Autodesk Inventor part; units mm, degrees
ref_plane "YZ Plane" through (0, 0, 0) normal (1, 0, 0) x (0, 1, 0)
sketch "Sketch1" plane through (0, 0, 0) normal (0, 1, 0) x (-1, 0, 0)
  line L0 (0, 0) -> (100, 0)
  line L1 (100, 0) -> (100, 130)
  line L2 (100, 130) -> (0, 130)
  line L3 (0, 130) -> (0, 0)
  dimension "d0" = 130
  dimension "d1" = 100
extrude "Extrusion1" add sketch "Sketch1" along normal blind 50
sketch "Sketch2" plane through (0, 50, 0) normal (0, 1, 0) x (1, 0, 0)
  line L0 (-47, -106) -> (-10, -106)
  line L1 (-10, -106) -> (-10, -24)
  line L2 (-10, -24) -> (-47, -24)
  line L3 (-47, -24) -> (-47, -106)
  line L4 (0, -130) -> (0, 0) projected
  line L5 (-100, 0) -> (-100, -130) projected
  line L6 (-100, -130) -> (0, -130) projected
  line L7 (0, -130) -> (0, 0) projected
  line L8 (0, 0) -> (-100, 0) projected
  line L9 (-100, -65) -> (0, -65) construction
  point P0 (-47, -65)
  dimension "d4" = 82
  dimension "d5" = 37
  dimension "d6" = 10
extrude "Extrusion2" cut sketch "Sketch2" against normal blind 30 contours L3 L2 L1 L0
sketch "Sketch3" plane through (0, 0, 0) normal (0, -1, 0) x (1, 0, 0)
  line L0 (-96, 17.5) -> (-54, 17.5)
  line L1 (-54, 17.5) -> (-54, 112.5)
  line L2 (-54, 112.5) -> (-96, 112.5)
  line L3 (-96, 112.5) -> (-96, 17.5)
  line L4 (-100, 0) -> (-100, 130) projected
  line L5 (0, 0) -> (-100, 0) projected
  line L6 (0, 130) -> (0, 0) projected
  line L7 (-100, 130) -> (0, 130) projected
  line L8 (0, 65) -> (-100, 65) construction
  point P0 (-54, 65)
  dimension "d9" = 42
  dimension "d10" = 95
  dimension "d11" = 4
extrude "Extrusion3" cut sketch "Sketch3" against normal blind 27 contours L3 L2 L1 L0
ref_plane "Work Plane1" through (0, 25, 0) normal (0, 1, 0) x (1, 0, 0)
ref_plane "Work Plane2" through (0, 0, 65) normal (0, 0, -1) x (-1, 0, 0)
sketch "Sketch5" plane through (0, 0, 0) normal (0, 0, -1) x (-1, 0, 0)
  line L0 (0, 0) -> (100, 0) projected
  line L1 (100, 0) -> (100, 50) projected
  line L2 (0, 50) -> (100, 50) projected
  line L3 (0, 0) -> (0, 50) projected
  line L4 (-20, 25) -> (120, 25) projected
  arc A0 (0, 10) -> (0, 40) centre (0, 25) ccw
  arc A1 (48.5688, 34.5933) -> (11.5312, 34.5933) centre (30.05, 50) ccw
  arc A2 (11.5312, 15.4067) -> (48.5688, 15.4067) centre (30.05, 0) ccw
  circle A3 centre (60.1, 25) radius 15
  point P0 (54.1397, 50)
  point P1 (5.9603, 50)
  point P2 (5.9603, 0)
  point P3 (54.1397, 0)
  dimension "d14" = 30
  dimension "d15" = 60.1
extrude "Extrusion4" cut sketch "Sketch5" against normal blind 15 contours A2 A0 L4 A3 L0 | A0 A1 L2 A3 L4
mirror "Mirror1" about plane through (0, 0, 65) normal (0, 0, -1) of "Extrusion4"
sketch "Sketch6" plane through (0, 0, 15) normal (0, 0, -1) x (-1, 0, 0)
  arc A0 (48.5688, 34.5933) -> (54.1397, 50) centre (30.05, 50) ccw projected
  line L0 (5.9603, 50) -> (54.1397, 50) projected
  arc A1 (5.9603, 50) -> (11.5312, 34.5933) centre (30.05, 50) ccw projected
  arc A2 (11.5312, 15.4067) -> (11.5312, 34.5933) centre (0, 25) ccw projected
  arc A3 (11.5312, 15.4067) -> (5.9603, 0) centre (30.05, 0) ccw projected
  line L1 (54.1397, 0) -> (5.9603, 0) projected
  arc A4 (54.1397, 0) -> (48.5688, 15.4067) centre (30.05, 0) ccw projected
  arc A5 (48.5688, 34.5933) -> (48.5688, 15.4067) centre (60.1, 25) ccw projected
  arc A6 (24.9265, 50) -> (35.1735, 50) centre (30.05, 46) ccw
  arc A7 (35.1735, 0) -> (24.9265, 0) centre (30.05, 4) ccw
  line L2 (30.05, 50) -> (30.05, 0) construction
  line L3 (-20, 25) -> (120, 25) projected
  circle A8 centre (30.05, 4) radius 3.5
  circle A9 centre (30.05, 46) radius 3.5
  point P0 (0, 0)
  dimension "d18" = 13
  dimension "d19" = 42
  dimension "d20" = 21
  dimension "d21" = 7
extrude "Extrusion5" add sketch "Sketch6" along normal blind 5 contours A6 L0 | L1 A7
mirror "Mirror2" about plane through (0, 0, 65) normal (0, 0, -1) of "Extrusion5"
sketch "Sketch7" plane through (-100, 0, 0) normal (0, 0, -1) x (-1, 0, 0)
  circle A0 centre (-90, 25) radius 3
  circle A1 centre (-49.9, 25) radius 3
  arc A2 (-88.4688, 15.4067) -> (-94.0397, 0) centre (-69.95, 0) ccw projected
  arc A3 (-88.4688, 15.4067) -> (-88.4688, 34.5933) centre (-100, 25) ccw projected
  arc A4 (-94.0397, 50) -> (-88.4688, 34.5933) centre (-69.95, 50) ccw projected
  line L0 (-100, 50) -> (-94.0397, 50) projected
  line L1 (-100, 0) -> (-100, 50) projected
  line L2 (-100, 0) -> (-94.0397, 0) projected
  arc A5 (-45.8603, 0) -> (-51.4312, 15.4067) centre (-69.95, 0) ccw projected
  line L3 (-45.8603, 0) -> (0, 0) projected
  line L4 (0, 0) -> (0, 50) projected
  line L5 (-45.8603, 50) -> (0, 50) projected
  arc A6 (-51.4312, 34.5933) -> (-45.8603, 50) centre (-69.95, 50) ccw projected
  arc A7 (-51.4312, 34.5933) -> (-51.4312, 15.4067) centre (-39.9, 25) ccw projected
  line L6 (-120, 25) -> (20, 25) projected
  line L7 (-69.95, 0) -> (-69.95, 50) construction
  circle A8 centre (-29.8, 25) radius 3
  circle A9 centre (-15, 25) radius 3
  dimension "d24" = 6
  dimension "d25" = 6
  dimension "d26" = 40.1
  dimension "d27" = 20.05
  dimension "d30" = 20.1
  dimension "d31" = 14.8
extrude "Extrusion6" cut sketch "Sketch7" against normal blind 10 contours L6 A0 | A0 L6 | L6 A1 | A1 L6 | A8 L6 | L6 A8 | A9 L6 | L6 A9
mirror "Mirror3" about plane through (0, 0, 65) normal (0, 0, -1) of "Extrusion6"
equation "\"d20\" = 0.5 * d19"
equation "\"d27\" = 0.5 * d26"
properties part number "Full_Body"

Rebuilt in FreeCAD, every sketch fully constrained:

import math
import FreeCAD as App
import Part
import Sketcher
from FreeCAD import Vector

doc = App.newDocument("Part")
body = doc.addObject("PartDesign::Body", "Body")

# Sketch on XZ plane
sketch1 = body.newObject("Sketcher::SketchObject", "Sketch")
sketch1.AttachmentSupport = (doc.getObject("XZ_Plane"), [""])
sketch1.MapMode = "FlatFace"
sketch1.addGeometry(Part.LineSegment(Vector(0, 130, 0), Vector(0, 0, 0)), False)
sketch1.addGeometry(Part.LineSegment(Vector(0, 0, 0), Vector(-100, 0, 0)), False)
sketch1.addGeometry(Part.LineSegment(Vector(-100, 0, 0), Vector(-100, 130, 0)), False)
sketch1.addGeometry(Part.LineSegment(Vector(-100, 130, 0), Vector(0, 130, 0)), False)
sketch1.addConstraint(Sketcher.Constraint("Coincident", 0, 2, 1, 1))
sketch1.addConstraint(Sketcher.Constraint("Coincident", 1, 2, 2, 1))
sketch1.addConstraint(Sketcher.Constraint("Coincident", 2, 2, 3, 1))
sketch1.addConstraint(Sketcher.Constraint("Coincident", 3, 2, 0, 1))
sketch1.addConstraint(Sketcher.Constraint("Vertical", 0))
sketch1.addConstraint(Sketcher.Constraint("Horizontal", 1))
sketch1.addConstraint(Sketcher.Constraint("Vertical", 2))
sketch1.addConstraint(Sketcher.Constraint("Horizontal", 3))
sketch1.addConstraint(Sketcher.Constraint("Coincident", 0, 2, -1, 1))
sketch1.addConstraint(Sketcher.Constraint("DistanceX", 1, 2, 1, 1, 100.0))
sketch1.addConstraint(Sketcher.Constraint("DistanceY", 0, 2, 0, 1, 130.0))
pad1 = body.newObject("PartDesign::Pad", "Pad")
pad1.Profile = sketch1
pad1.Length = 50
pad1.Reversed = True

# Sketch on XZ plane
sketch2 = body.newObject("Sketcher::SketchObject", "Sketch001")
sketch2.AttachmentSupport = (doc.getObject("XZ_Plane"), [""])
sketch2.MapMode = "FlatFace"
sketch2.AttachmentOffset = App.Placement(Vector(0, 0, -50), App.Rotation())
sketch2.addGeometry(Part.LineSegment(Vector(-47, 24, 0), Vector(-47, 106, 0)), False)
sketch2.addGeometry(Part.LineSegment(Vector(-47, 106, 0), Vector(-10, 106, 0)), False)
sketch2.addGeometry(Part.LineSegment(Vector(-10, 106, 0), Vector(-10, 24, 0)), False)
sketch2.addGeometry(Part.LineSegment(Vector(-10, 24, 0), Vector(-47, 24, 0)), False)
sketch2.addConstraint(Sketcher.Constraint("Coincident", 0, 2, 1, 1))
sketch2.addConstraint(Sketcher.Constraint("Coincident", 1, 2, 2, 1))
sketch2.addConstraint(Sketcher.Constraint("Coincident", 2, 2, 3, 1))
sketch2.addConstraint(Sketcher.Constraint("Coincident", 3, 2, 0, 1))
sketch2.addConstraint(Sketcher.Constraint("Vertical", 0))
sketch2.addConstraint(Sketcher.Constraint("Horizontal", 1))
sketch2.addConstraint(Sketcher.Constraint("Vertical", 2))
sketch2.addConstraint(Sketcher.Constraint("Horizontal", 3))
sketch2.addConstraint(Sketcher.Constraint("DistanceX", 1, 1, 1, 2, 37.0))
sketch2.addConstraint(Sketcher.Constraint("DistanceY", 0, 1, 0, 2, 82.0))
sketch2.addConstraint(Sketcher.Constraint("DistanceX", 1, 2, -1, 1, 10.0))
sketch2.addConstraint(Sketcher.Constraint("DistanceY", -1, 1, 0, 2, 106.0))
pocket1 = body.newObject("PartDesign::Pocket", "Pocket")
pocket1.Profile = sketch2
pocket1.Length = 30
pocket1.Reversed = True

# Sketch on XZ plane
sketch3 = body.newObject("Sketcher::SketchObject", "Sketch002")
sketch3.AttachmentSupport = (doc.getObject("XZ_Plane"), [""])
sketch3.MapMode = "FlatFace"
sketch3.addGeometry(Part.LineSegment(Vector(-96, 112, 0), Vector(-96, 18, 0)), False)
sketch3.addGeometry(Part.LineSegment(Vector(-96, 18, 0), Vector(-54, 18, 0)), False)
sketch3.addGeometry(Part.LineSegment(Vector(-54, 18, 0), Vector(-54, 112, 0)), False)
sketch3.addGeometry(Part.LineSegment(Vector(-54, 112, 0), Vector(-96, 112, 0)), False)
sketch3.addConstraint(Sketcher.Constraint("Coincident", 0, 2, 1, 1))
sketch3.addConstraint(Sketcher.Constraint("Coincident", 1, 2, 2, 1))
sketch3.addConstraint(Sketcher.Constraint("Coincident", 2, 2, 3, 1))
sketch3.addConstraint(Sketcher.Constraint("Coincident", 3, 2, 0, 1))
sketch3.addConstraint(Sketcher.Constraint("Vertical", 0))
sketch3.addConstraint(Sketcher.Constraint("Horizontal", 1))
sketch3.addConstraint(Sketcher.Constraint("Vertical", 2))
sketch3.addConstraint(Sketcher.Constraint("Horizontal", 3))
sketch3.addConstraint(Sketcher.Constraint("DistanceX", 1, 1, 1, 2, 42.0))
sketch3.addConstraint(Sketcher.Constraint("DistanceY", 0, 2, 0, 1, 95.0))
sketch3.addConstraint(Sketcher.Constraint("DistanceX", 0, 2, -1, 1, 96.0))
sketch3.addConstraint(Sketcher.Constraint("DistanceY", -1, 1, 0, 2, 17.5))
pocket2 = body.newObject("PartDesign::Pocket", "Pocket001")
pocket2.Profile = sketch3
pocket2.Length = 27

# Sketch on XY plane
sketch4 = body.newObject("Sketcher::SketchObject", "Sketch003")
sketch4.AttachmentSupport = (doc.getObject("XY_Plane"), [""])
sketch4.MapMode = "FlatFace"
sketch4.addGeometry(Part.ArcOfCircle(Part.Circle(Vector(-30, 0, 0), Vector(0, 0, 1), 24), math.radians(0), math.radians(40)), False)
sketch4.addGeometry(Part.LineSegment(Vector(-6, 0, 0), Vector(-54, 0, 0)), False)
sketch4.addGeometry(Part.ArcOfCircle(Part.Circle(Vector(-30, 0, 0), Vector(0, 0, 1), 24), math.radians(140), math.radians(180)), False)
sketch4.addGeometry(Part.ArcOfCircle(Part.Circle(Vector(-60, 25, 0), Vector(0, 0, 1), 15), math.radians(-40), math.radians(40)), False)
sketch4.addGeometry(Part.ArcOfCircle(Part.Circle(Vector(-30, 50, 0), Vector(0, 0, 1), 24), math.radians(180), math.radians(220)), False)
sketch4.addGeometry(Part.LineSegment(Vector(-54, 50, 0), Vector(-6, 50, 0)), False)
sketch4.addGeometry(Part.ArcOfCircle(Part.Circle(Vector(-30, 50, 0), Vector(0, 0, 1), 24), math.radians(-40), math.radians(0)), False)
sketch4.addGeometry(Part.ArcOfCircle(Part.Circle(Vector(0, 25, 0), Vector(0, 0, 1), 15), math.radians(140), math.radians(220)), False)
sketch4.addConstraint(Sketcher.Constraint("Coincident", 0, 1, 1, 1))
sketch4.addConstraint(Sketcher.Constraint("Coincident", 1, 2, 2, 2))
sketch4.addConstraint(Sketcher.Constraint("Tangent", 2, 1, 3, 1))
sketch4.addConstraint(Sketcher.Constraint("Tangent", 3, 2, 4, 2))
sketch4.addConstraint(Sketcher.Constraint("Coincident", 4, 1, 5, 1))
sketch4.addConstraint(Sketcher.Constraint("Coincident", 5, 2, 6, 2))
sketch4.addConstraint(Sketcher.Constraint("Tangent", 6, 1, 7, 1))
sketch4.addConstraint(Sketcher.Constraint("Tangent", 7, 2, 0, 2))
sketch4.addConstraint(Sketcher.Constraint("Horizontal", 1))
sketch4.addConstraint(Sketcher.Constraint("Horizontal", 5))
sketch4.addConstraint(Sketcher.Constraint("Coincident", 2, 3, 0, 3))
sketch4.addConstraint(Sketcher.Constraint("Coincident", 6, 3, 4, 3))
sketch4.addConstraint(Sketcher.Constraint("Equal", 0, 2))
sketch4.addConstraint(Sketcher.Constraint("Equal", 2, 4))
sketch4.addConstraint(Sketcher.Constraint("Equal", 4, 6))
sketch4.addConstraint(Sketcher.Constraint("Equal", 3, 7))
sketch4.addConstraint(Sketcher.Constraint("PointOnObject", 0, 3, -1))
sketch4.addConstraint(Sketcher.Constraint("PointOnObject", 7, 3, -2))
sketch4.addConstraint(Sketcher.Constraint("PointOnObject", 0, 1, -1))
sketch4.addConstraint(Sketcher.Constraint("Horizontal", 3, 3, 7, 3))
sketch4.addConstraint(Sketcher.Constraint("Horizontal", 6, 3, 4, 1))
sketch4.addConstraint(Sketcher.Constraint("Radius", 3, 15.0))
sketch4.addConstraint(Sketcher.Constraint("DistanceX", 3, 3, -1, 1, 60.1))
sketch4.addConstraint(Sketcher.Constraint("DistanceY", -1, 1, 3, 3, 25.0))
pocket3 = body.newObject("PartDesign::Pocket", "Pocket002")
pocket3.Profile = sketch4
pocket3.Length = 15
pocket3.Reversed = True
doc.recompute()

datumplane = body.newObject("PartDesign::Plane", "DatumPlane")
datumplane.AttachmentSupport = (doc.getObject("XY_Plane"), [""])
datumplane.MapMode = "FlatFace"
datumplane.AttachmentOffset = App.Placement(Vector(0, 0, 65), App.Rotation())
mirrored = body.newObject("PartDesign::Mirrored", "Mirrored")
mirrored.Originals = [pocket3]
mirrored.MirrorPlane = (datumplane, [""])
body.Tip = mirrored

# Sketch on XY plane
sketch5 = body.newObject("Sketcher::SketchObject", "Sketch004")
sketch5.AttachmentSupport = (doc.getObject("XY_Plane"), [""])
sketch5.MapMode = "FlatFace"
sketch5.AttachmentOffset = App.Placement(Vector(0, 0, 15), App.Rotation())
sketch5.addGeometry(Part.ArcOfCircle(Part.Circle(Vector(-30.1, 46, 0), Vector(0, 0, 1), 6.5), math.radians(142), math.radians(398)), False)
sketch5.addGeometry(Part.LineSegment(Vector(-35.2, 50, 0), Vector(-24.9, 50, 0)), False)
sketch5.addGeometry(Part.Circle(Vector(-30.1, 46, 0), Vector(0, 0, 1), 3.5), False)
sketch5.addGeometry(Part.LineSegment(Vector(-24.9, 0, 0), Vector(-35.2, 0, 0)), False)
sketch5.addGeometry(Part.ArcOfCircle(Part.Circle(Vector(-30.1, 4, 0), Vector(0, 0, 1), 6.5), math.radians(-38), math.radians(218)), False)
sketch5.addGeometry(Part.Circle(Vector(-30.1, 4, 0), Vector(0, 0, 1), 3.5), False)
sketch5.addConstraint(Sketcher.Constraint("Coincident", 0, 1, 1, 1))
sketch5.addConstraint(Sketcher.Constraint("Coincident", 1, 2, 0, 2))
sketch5.addConstraint(Sketcher.Constraint("Coincident", 3, 1, 4, 1))
sketch5.addConstraint(Sketcher.Constraint("Coincident", 4, 2, 3, 2))
sketch5.addConstraint(Sketcher.Constraint("Horizontal", 1))
sketch5.addConstraint(Sketcher.Constraint("Horizontal", 3))
sketch5.addConstraint(Sketcher.Constraint("Coincident", 2, 3, 0, 3))
sketch5.addConstraint(Sketcher.Constraint("Coincident", 5, 3, 4, 3))
sketch5.addConstraint(Sketcher.Constraint("Equal", 0, 4))
sketch5.addConstraint(Sketcher.Constraint("Equal", 2, 5))
sketch5.addConstraint(Sketcher.Constraint("PointOnObject", 3, 1, -1))
sketch5.addConstraint(Sketcher.Constraint("Vertical", 2, 3, 4, 3))
sketch5.addConstraint(Sketcher.Constraint("Vertical", 1, 2, 3, 1))
sketch5.addConstraint(Sketcher.Constraint("Diameter", 2, 7.0))
sketch5.addConstraint(Sketcher.Constraint("Radius", 0, 6.5))
sketch5.addConstraint(Sketcher.Constraint("DistanceY", 4, 3, 0, 3, 42.0))
sketch5.addConstraint(Sketcher.Constraint("DistanceY", -1, 1, 0, 3, 46.0))
sketch5.addConstraint(Sketcher.Constraint("DistanceX", 0, 3, -1, 1, 30.05))
pad2 = body.newObject("PartDesign::Pad", "Pad001")
pad2.Profile = sketch5
pad2.Length = 5
pad2.Reversed = True
doc.recompute()

datumplane2 = body.newObject("PartDesign::Plane", "DatumPlane001")
datumplane2.AttachmentSupport = (doc.getObject("XY_Plane"), [""])
datumplane2.MapMode = "FlatFace"
datumplane2.AttachmentOffset = App.Placement(Vector(0, 0, 65), App.Rotation())
mirrored2 = body.newObject("PartDesign::Mirrored", "Mirrored001")
mirrored2.Originals = [pad2]
mirrored2.MirrorPlane = (datumplane2, [""])
body.Tip = mirrored2

# Sketch on XY plane
sketch6 = body.newObject("Sketcher::SketchObject", "Sketch005")
sketch6.AttachmentSupport = (doc.getObject("XY_Plane"), [""])
sketch6.MapMode = "FlatFace"
sketch6.addGeometry(Part.Circle(Vector(-10, 25, 0), Vector(0, 0, 1), 3), False)
sketch6.addGeometry(Part.Circle(Vector(-50.1, 25, 0), Vector(0, 0, 1), 3), False)
sketch6.addGeometry(Part.Circle(Vector(-70.2, 25, 0), Vector(0, 0, 1), 3), False)
sketch6.addGeometry(Part.Circle(Vector(-85, 25, 0), Vector(0, 0, 1), 3), False)
sketch6.addConstraint(Sketcher.Constraint("Equal", 0, 1))
sketch6.addConstraint(Sketcher.Constraint("Equal", 1, 2))
sketch6.addConstraint(Sketcher.Constraint("Equal", 2, 3))
sketch6.addConstraint(Sketcher.Constraint("Horizontal", 0, 3, 1, 3))
sketch6.addConstraint(Sketcher.Constraint("Horizontal", 1, 3, 2, 3))
sketch6.addConstraint(Sketcher.Constraint("Horizontal", 2, 3, 3, 3))
sketch6.addConstraint(Sketcher.Constraint("Diameter", 0, 6.0))
sketch6.addConstraint(Sketcher.Constraint("DistanceX", 1, 3, 0, 3, 40.1))
sketch6.addConstraint(Sketcher.Constraint("DistanceX", 2, 3, 1, 3, 20.1))
sketch6.addConstraint(Sketcher.Constraint("DistanceX", 3, 3, 2, 3, 14.8))
sketch6.addConstraint(Sketcher.Constraint("DistanceX", 0, 3, -1, 1, 10.0))
sketch6.addConstraint(Sketcher.Constraint("DistanceY", -1, 1, 0, 3, 25.0))
pocket4 = body.newObject("PartDesign::Pocket", "Pocket003")
pocket4.Profile = sketch6
pocket4.Length = 10
pocket4.Reversed = True
doc.recompute()

datumplane3 = body.newObject("PartDesign::Plane", "DatumPlane002")
datumplane3.AttachmentSupport = (doc.getObject("XY_Plane"), [""])
datumplane3.MapMode = "FlatFace"
datumplane3.AttachmentOffset = App.Placement(Vector(0, 0, 65), App.Rotation())
mirrored3 = body.newObject("PartDesign::Mirrored", "Mirrored002")
mirrored3.Originals = [pocket4]
mirrored3.MirrorPlane = (datumplane3, [""])
body.Tip = mirrored3

doc.recompute()
